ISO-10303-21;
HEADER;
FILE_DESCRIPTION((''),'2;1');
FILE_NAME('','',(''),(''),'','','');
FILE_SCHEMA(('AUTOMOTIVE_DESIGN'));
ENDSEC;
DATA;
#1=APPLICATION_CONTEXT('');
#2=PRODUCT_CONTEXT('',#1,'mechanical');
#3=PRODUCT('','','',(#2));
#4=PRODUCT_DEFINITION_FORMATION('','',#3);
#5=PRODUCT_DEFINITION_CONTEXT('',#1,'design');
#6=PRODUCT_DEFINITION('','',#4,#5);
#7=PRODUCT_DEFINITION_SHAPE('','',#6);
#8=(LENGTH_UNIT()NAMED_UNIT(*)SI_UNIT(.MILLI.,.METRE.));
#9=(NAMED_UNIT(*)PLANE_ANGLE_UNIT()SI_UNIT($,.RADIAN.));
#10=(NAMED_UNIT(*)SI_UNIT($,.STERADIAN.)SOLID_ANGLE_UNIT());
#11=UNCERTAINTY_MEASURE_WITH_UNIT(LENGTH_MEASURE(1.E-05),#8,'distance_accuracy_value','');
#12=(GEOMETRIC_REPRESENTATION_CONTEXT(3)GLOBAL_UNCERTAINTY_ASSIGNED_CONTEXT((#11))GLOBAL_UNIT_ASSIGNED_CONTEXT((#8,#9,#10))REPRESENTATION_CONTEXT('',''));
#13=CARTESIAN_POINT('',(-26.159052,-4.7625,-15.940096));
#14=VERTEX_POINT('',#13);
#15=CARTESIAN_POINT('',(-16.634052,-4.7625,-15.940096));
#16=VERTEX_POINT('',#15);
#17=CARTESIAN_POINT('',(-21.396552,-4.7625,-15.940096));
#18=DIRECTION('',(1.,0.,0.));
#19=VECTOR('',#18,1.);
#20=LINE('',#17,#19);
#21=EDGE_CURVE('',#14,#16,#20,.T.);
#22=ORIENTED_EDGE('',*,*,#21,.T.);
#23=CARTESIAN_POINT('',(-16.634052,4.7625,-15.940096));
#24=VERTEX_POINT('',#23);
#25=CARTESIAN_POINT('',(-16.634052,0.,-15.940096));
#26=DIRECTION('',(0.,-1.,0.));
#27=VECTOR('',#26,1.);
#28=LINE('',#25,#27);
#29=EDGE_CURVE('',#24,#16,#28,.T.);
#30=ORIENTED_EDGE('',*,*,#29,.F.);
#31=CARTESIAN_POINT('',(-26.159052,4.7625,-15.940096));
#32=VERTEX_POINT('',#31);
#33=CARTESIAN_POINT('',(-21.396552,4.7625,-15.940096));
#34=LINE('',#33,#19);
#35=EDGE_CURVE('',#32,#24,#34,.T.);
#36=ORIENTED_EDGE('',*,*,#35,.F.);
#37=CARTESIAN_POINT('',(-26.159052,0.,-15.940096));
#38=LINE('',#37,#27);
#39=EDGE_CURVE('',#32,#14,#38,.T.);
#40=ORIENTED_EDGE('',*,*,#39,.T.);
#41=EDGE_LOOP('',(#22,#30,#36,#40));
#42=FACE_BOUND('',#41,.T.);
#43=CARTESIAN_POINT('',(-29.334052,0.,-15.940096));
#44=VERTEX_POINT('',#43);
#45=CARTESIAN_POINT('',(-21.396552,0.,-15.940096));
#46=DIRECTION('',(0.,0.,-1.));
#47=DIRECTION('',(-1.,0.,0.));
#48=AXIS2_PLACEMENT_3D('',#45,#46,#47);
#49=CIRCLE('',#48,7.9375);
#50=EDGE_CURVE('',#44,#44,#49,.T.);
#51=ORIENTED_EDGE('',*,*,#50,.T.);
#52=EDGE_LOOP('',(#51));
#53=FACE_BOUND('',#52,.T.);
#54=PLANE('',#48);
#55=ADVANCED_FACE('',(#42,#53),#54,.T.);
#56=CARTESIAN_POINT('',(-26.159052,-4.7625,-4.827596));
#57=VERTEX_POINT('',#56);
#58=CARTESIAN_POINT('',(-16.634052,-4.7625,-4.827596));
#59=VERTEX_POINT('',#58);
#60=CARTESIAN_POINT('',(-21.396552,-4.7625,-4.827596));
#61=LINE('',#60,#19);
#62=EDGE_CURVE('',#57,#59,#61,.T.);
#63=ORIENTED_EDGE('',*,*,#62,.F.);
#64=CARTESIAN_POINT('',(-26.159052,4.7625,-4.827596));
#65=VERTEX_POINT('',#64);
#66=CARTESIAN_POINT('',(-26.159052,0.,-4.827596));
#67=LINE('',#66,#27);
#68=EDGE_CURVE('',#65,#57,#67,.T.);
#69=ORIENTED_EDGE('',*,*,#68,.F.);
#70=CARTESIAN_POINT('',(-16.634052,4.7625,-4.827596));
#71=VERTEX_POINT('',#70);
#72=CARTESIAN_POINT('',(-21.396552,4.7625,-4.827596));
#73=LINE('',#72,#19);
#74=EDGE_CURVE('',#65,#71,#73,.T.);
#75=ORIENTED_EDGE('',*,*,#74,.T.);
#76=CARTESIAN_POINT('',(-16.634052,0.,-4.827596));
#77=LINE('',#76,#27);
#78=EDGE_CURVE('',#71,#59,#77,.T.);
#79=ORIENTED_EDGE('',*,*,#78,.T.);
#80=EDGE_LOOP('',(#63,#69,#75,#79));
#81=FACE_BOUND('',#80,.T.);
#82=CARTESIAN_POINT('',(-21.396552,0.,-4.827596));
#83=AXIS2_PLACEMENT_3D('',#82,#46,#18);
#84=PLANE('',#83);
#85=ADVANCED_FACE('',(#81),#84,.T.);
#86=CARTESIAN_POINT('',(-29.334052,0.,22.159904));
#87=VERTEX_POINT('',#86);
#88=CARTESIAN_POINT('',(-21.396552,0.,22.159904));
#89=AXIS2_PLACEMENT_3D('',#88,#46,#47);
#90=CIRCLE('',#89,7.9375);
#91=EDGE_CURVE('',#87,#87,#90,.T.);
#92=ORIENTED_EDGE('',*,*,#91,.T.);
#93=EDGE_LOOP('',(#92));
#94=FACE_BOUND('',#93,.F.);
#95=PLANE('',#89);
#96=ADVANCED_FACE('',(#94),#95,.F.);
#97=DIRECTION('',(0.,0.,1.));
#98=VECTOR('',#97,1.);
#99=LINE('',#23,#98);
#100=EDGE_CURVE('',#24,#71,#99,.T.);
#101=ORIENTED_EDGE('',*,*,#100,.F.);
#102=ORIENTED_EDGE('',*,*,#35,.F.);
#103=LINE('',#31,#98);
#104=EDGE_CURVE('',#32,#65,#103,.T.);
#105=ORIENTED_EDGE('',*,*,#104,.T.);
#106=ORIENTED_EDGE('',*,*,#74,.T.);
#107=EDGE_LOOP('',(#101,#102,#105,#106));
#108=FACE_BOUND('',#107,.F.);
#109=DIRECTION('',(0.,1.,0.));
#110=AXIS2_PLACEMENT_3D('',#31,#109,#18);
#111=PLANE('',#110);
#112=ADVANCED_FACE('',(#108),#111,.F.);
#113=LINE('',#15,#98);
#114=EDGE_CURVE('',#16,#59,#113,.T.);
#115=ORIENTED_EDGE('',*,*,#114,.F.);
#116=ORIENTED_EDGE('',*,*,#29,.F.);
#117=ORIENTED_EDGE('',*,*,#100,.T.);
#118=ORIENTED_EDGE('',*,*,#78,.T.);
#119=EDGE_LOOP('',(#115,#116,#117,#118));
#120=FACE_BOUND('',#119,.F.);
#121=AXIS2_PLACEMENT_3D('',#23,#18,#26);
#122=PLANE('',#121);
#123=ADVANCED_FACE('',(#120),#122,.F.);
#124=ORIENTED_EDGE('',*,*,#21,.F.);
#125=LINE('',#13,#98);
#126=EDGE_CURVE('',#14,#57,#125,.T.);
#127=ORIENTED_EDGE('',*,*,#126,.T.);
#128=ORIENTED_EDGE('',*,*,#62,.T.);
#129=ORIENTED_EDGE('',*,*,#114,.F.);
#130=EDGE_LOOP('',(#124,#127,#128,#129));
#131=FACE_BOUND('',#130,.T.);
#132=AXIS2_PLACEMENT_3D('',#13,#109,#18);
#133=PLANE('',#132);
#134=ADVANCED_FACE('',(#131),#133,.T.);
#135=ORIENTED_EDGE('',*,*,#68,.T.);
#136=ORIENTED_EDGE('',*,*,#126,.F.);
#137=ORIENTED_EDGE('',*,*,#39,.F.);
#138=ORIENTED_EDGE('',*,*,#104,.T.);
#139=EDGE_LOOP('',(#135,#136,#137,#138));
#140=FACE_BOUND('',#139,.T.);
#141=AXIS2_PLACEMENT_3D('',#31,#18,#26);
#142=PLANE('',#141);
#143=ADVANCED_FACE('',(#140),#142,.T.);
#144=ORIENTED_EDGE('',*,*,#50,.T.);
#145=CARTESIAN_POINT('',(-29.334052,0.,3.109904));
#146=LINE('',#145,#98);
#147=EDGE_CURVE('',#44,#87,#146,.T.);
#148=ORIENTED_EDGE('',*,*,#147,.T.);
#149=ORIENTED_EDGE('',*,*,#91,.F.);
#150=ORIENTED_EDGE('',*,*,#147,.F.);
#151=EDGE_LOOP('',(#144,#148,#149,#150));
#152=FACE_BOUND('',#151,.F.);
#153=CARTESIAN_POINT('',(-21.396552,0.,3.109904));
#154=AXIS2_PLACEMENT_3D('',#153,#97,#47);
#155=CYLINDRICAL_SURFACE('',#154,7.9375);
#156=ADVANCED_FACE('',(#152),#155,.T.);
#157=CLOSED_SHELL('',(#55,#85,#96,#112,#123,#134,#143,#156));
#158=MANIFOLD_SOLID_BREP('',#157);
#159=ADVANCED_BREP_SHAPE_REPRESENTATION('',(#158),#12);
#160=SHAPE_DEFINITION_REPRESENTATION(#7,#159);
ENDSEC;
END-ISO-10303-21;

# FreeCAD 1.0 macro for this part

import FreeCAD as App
import Part
import Sketcher
Q = App.Units.Quantity

doc = App.newDocument("Part")
body = doc.addObject("PartDesign::Body", "Body")

# Sketch on XZ plane
sketch1 = body.newObject("Sketcher::SketchObject", "Sketch")
sketch1.AttachmentSupport = (doc.getObject("XZ_Plane"), [""])
sketch1.MapMode = "FlatFace"
sketch1.addGeometry([
    Part.LineSegment(App.Vector(-29, 22, 0), App.Vector(-29, -16, 0)),
    Part.LineSegment(App.Vector(-29, -16, 0), App.Vector(-21, -16, 0)),
    Part.LineSegment(App.Vector(-21, -16, 0), App.Vector(-21, 22, 0)),
    Part.LineSegment(App.Vector(-21, 22, 0), App.Vector(-29, 22, 0)),
], False)
sketch1.addGeometry(Part.LineSegment(App.Vector(-21, 22, 0), App.Vector(-21, -16, 0)), True)  # axis
sketch1.addConstraint([
    Sketcher.Constraint("Coincident", 0, 2, 1, 1),
    Sketcher.Constraint("Coincident", 1, 2, 2, 1),
    Sketcher.Constraint("Coincident", 2, 2, 3, 1),
    Sketcher.Constraint("Coincident", 3, 2, 0, 1),
    Sketcher.Constraint("Vertical", 0),
    Sketcher.Constraint("Horizontal", 1),
    Sketcher.Constraint("Vertical", 2),
    Sketcher.Constraint("Horizontal", 3),
    Sketcher.Constraint("Vertical", 4),
    Sketcher.Constraint("Coincident", 4, 1, 2, 2),
    Sketcher.Constraint("Horizontal", 0, 2, 4, 2),
    Sketcher.Constraint("DistanceY", 0, 2, 0, 1, Q("1.5 in")),
    Sketcher.Constraint("DistanceX", 1, 1, 1, 2, Q("0.3125 in")),
    Sketcher.Constraint("DistanceX", 0, 2, -1, 1, Q("29.334052 mm")),
    Sketcher.Constraint("DistanceY", 0, 2, -1, 1, Q("15.940096 mm")),
])
revolution = body.newObject("PartDesign::Revolution", "Revolution")
revolution.Profile = sketch1
revolution.ReferenceAxis = (sketch1, ["Axis0"])
revolution.Angle = 360

# Sketch on XY plane
sketch2 = body.newObject("Sketcher::SketchObject", "Sketch001")
sketch2.AttachmentSupport = (doc.getObject("XY_Plane"), [""])
sketch2.MapMode = "FlatFace"
sketch2.AttachmentOffset = App.Placement(App.Vector(0, 0, -15.940096), App.Rotation())
sketch2.addGeometry([
    Part.LineSegment(App.Vector(-26, -5, 0), App.Vector(-26, 5, 0)),
    Part.LineSegment(App.Vector(-26, 5, 0), App.Vector(-17, 5, 0)),
    Part.LineSegment(App.Vector(-17, 5, 0), App.Vector(-17, -5, 0)),
    Part.LineSegment(App.Vector(-17, -5, 0), App.Vector(-26, -5, 0)),
], False)
sketch2.addConstraint([
    Sketcher.Constraint("Coincident", 0, 2, 1, 1),
    Sketcher.Constraint("Coincident", 1, 2, 2, 1),
    Sketcher.Constraint("Coincident", 2, 2, 3, 1),
    Sketcher.Constraint("Coincident", 3, 2, 0, 1),
    Sketcher.Constraint("Vertical", 0),
    Sketcher.Constraint("Horizontal", 1),
    Sketcher.Constraint("Vertical", 2),
    Sketcher.Constraint("Horizontal", 3),
    Sketcher.Constraint("Equal", 3, 0),
    Sketcher.Constraint("DistanceX", 1, 1, 1, 2, Q("0.375 in")),
    Sketcher.Constraint("DistanceY", -1, 1, 0, 2, Q("0.1875 in")),
    Sketcher.Constraint("DistanceX", 0, 2, -1, 1, Q("26.159052 mm")),
])
pocket1 = body.newObject("PartDesign::Pocket", "Pocket")
pocket1.Profile = sketch2
pocket1.Length = Q("0.4375 in")
pocket1.Reversed = True

doc.recompute()
